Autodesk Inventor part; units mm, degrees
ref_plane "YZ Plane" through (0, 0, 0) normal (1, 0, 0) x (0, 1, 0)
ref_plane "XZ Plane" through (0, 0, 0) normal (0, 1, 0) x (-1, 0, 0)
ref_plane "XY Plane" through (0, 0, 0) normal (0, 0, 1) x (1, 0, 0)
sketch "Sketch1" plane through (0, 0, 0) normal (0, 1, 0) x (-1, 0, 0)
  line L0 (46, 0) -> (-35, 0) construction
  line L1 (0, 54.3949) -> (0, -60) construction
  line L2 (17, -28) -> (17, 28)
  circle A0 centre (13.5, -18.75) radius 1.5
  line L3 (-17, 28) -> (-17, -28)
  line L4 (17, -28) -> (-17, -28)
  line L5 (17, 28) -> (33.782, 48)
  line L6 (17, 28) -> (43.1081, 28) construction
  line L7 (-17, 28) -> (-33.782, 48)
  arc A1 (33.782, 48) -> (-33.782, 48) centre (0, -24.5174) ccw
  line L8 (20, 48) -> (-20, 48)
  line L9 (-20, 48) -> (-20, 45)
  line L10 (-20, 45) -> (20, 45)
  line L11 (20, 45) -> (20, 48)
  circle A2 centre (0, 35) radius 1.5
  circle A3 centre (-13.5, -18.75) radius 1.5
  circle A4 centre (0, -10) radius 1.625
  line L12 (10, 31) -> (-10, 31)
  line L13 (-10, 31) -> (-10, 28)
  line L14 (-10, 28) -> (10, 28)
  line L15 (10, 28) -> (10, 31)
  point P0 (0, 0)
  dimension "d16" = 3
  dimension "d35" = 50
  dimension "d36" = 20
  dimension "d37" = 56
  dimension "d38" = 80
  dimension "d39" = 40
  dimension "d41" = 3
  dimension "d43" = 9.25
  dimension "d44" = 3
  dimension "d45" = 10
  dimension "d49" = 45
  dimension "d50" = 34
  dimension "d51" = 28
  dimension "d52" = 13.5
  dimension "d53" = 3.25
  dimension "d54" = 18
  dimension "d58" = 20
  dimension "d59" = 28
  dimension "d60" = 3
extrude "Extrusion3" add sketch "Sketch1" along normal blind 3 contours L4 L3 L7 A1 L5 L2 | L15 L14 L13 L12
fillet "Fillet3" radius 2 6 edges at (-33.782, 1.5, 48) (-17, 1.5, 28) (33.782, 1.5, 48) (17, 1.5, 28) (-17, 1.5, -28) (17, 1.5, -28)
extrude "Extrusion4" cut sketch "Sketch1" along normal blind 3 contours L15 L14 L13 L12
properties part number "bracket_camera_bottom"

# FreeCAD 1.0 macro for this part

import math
import FreeCAD as App
import Part
import Sketcher
from FreeCAD import Vector
Q = App.Units.Quantity


def edges_at(feature, points):
    """Names of the edges that pass closest to the given points."""
    edges = feature.Shape.Edges
    near = lambda p: min(range(len(edges)), key=lambda i: edges[i].distToShape(Part.Vertex(*p))[0])
    return sorted({f"Edge{near(p) + 1}" for p in points})


def add_polygon(sketch, points):
    """Adds a closed chain of lines whose ends are joined by coincident constraints."""
    first, n = sketch.GeometryCount, len(points)
    for a, b in zip(points, points[1:] + points[:1]):
        sketch.addGeometry(Part.LineSegment(App.Vector(*a, 0), App.Vector(*b, 0)), False)
    for i in range(n):
        sketch.addConstraint(Sketcher.Constraint("Coincident", first + i, 2, first + (i + 1) % n, 1))

doc = App.newDocument("Part")
body = doc.addObject("PartDesign::Body", "Body")

sketch1 = body.newObject("Sketcher::SketchObject", "Sketch")
sketch1.AttachmentSupport = (doc.getObject("XZ_Plane"), [""])
sketch1.MapMode = "FlatFace"
sketch1.addGeometry(Part.LineSegment(Vector(17, -28, 0), Vector(-17, -28, 0)), False)
sketch1.addGeometry(Part.LineSegment(Vector(-17, -28, 0), Vector(-17, 28, 0)), False)
sketch1.addGeometry(Part.LineSegment(Vector(-17, 28, 0), Vector(-33.8, 48, 0)), False)
sketch1.addGeometry(Part.ArcOfCircle(Part.Circle(Vector(0, -24.5, 0), Vector(0, 0, 1), 80), math.radians(65), math.radians(115)), False)
sketch1.addGeometry(Part.LineSegment(Vector(33.8, 48, 0), Vector(17, 28, 0)), False)
sketch1.addGeometry(Part.LineSegment(Vector(17, 28, 0), Vector(17, -28, 0)), False)
sketch1.addGeometry(Part.Circle(Vector(13.5, -18.8, 0), Vector(0, 0, 1), 1.5), False)
sketch1.addGeometry(Part.Circle(Vector(0, -10, 0), Vector(0, 0, 1), 1.6), False)
sketch1.addGeometry(Part.Circle(Vector(-13.5, -18.8, 0), Vector(0, 0, 1), 1.5), False)
sketch1.addGeometry(Part.Circle(Vector(0, 35, 0), Vector(0, 0, 1), 1.5), False)
add_polygon(sketch1, [(20, 48), (-20, 48), (-20, 45), (20, 45)])
sketch1.addConstraint(Sketcher.Constraint("Coincident", 0, 2, 1, 1))
sketch1.addConstraint(Sketcher.Constraint("Coincident", 1, 2, 2, 1))
sketch1.addConstraint(Sketcher.Constraint("Coincident", 2, 2, 3, 2))
sketch1.addConstraint(Sketcher.Constraint("Coincident", 3, 1, 4, 1))
sketch1.addConstraint(Sketcher.Constraint("Coincident", 4, 2, 5, 1))
sketch1.addConstraint(Sketcher.Constraint("Coincident", 5, 2, 0, 1))
sketch1.addConstraint(Sketcher.Constraint("Horizontal", 0))
sketch1.addConstraint(Sketcher.Constraint("Vertical", 1))
sketch1.addConstraint(Sketcher.Constraint("Vertical", 5))
sketch1.addConstraint(Sketcher.Constraint("Horizontal", 10))
sketch1.addConstraint(Sketcher.Constraint("Vertical", 11))
sketch1.addConstraint(Sketcher.Constraint("Horizontal", 12))
sketch1.addConstraint(Sketcher.Constraint("Vertical", 13))
sketch1.addConstraint(Sketcher.Constraint("Equal", 6, 8))
sketch1.addConstraint(Sketcher.Constraint("Equal", 8, 9))
sketch1.addConstraint(Sketcher.Constraint("Symmetric", 0, 2, 4, 2, -1, 1))
sketch1.addConstraint(Sketcher.Constraint("Symmetric", 6, 3, 8, 3, -2))
sketch1.addConstraint(Sketcher.Constraint("Symmetric", 2, 2, 3, 1, -2))
sketch1.addConstraint(Sketcher.Constraint("PointOnObject", 7, 3, -2))
sketch1.addConstraint(Sketcher.Constraint("PointOnObject", 9, 3, -2))
sketch1.addConstraint(Sketcher.Constraint("Horizontal", 1, 2, 4, 2))
sketch1.addConstraint(Sketcher.Constraint("Horizontal", 3, 1, 10, 2))
sketch1.addConstraint(Sketcher.Constraint("Diameter", 6, Q("3 mm")))
sketch1.addConstraint(Sketcher.Constraint("Radius", 3, Q("80 mm")))
sketch1.addConstraint(Sketcher.Constraint("Diameter", 7, Q("3.25 mm")))
sketch1.addConstraint(Sketcher.Constraint("DistanceX", 0, 2, 0, 1, Q("34 mm")))
sketch1.addConstraint(Sketcher.Constraint("DistanceX", 10, 2, 10, 1, Q("40 mm")))
sketch1.addConstraint(Sketcher.Constraint("DistanceY", 1, 1, 1, 2, Q("56 mm")))
sketch1.addConstraint(Sketcher.Constraint("DistanceY", 11, 2, 11, 1, Q("3 mm")))
sketch1.addConstraint(Sketcher.Constraint("DistanceY", 7, 3, -1, 1, Q("10 mm")))
sketch1.addConstraint(Sketcher.Constraint("DistanceX", 10, 2, -1, 1, Q("20 mm")))
sketch1.addConstraint(Sketcher.Constraint("DistanceY", -1, 1, 11, 2, Q("45 mm")))
sketch1.addConstraint(Sketcher.Constraint("DistanceY", 7, 3, 9, 3, Q("45 mm")))
sketch1.addConstraint(Sketcher.Constraint("DistanceX", -1, 1, 6, 3, Q("13.5 mm")))
sketch1.addConstraint(Sketcher.Constraint("Angle", 2, Q("130 deg")))
sketch1.addConstraint(Sketcher.Constraint("DistanceY", 0, 2, 8, 3, Q("9.25 mm")))
pad1 = body.newObject("PartDesign::Pad", "Pad")
pad1.Profile = sketch1
pad1.Length = 3
pad1.Reversed = True
doc.recompute()

fillet = body.newObject("PartDesign::Fillet", "Fillet")
fillet.Base = (pad1, edges_at(pad1, [
    (-33.782, 1.5, 48),
    (-17, 1.5, 28),
    (33.782, 1.5, 48),
    (17, 1.5, 28),
    (-17, 1.5, -28),
    (17, 1.5, -28),
]))
fillet.Radius = 2

sketch2 = body.newObject("Sketcher::SketchObject", "Sketch001")
sketch2.AttachmentSupport = (doc.getObject("XZ_Plane"), [""])
sketch2.MapMode = "FlatFace"
add_polygon(sketch2, [(-10, 28), (-10, 31), (10, 31), (10, 28)])
sketch2.addConstraint(Sketcher.Constraint("Vertical", 0))
sketch2.addConstraint(Sketcher.Constraint("Horizontal", 1))
sketch2.addConstraint(Sketcher.Constraint("Vertical", 2))
sketch2.addConstraint(Sketcher.Constraint("Horizontal", 3))
sketch2.addConstraint(Sketcher.Constraint("DistanceX", 1, 1, 1, 2, Q("20 mm")))
sketch2.addConstraint(Sketcher.Constraint("DistanceY", 0, 1, 0, 2, Q("3 mm")))
sketch2.addConstraint(Sketcher.Constraint("DistanceX", 0, 2, -1, 1, Q("10 mm")))
sketch2.addConstraint(Sketcher.Constraint("DistanceY", -1, 1, 2, 2, Q("28 mm")))
pocket1 = body.newObject("PartDesign::Pocket", "Pocket")
pocket1.Profile = sketch2
pocket1.Length = 3

doc.recompute()
